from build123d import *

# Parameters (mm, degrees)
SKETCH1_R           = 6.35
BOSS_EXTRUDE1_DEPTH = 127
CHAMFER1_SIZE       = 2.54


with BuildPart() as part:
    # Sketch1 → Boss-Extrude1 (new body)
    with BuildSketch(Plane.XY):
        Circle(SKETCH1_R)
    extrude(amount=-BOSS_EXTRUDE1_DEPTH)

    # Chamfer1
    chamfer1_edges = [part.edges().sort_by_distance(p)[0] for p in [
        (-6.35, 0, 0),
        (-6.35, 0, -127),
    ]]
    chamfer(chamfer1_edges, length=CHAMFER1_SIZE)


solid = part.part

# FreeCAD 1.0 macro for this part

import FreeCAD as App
import Part
import Sketcher
from FreeCAD import Vector
Q = App.Units.Quantity


def edges_at(feature, points):
    """Names of the edges that pass closest to the given points."""
    edges = feature.Shape.Edges
    near = lambda p: min(range(len(edges)), key=lambda i: edges[i].distToShape(Part.Vertex(*p))[0])
    return sorted({f"Edge{near(p) + 1}" for p in points})

doc = App.newDocument("Part")
params = doc.addObject("Spreadsheet::Sheet", "Params")
for row, (alias, value) in enumerate([
    ("sketch1_diameter", "0.5 in"),
    ("pad1_length", "5 in"),
    ("chamfer_size", "0.1 in"),
], start=1):
    params.set(f"A{row}", alias)
    params.set(f"B{row}", "=" + value)
    params.setAlias(f"B{row}", alias)

body = doc.addObject("PartDesign::Body", "Body")

# Sketch on XY plane
sketch1 = body.newObject("Sketcher::SketchObject", "Sketch")
sketch1.AttachmentSupport = (doc.getObject("XY_Plane"), [""])
sketch1.MapMode = "FlatFace"
sketch1.addGeometry(Part.Circle(Vector(0, 0, 0), Vector(0, 0, 1), 6.35), False)
sketch1.addConstraint(Sketcher.Constraint("Coincident", 0, 3, -1, 1))
sketch1.addConstraint(Sketcher.Constraint("Diameter", 0, Q("0.5 in")))
sketch1.setExpression("Constraints[1]", "Params.sketch1_diameter")
pad1 = body.newObject("PartDesign::Pad", "Pad")
pad1.Profile = sketch1
pad1.setExpression("Length", "Params.pad1_length")
pad1.Reversed = True
doc.recompute()

chamfer = body.newObject("PartDesign::Chamfer", "Chamfer")
chamfer.Base = (pad1, edges_at(pad1, [(-6.35, 0, 0), (-6.35, 0, -127)]))
chamfer.setExpression("Size", "Params.chamfer_size")

doc.recompute()
